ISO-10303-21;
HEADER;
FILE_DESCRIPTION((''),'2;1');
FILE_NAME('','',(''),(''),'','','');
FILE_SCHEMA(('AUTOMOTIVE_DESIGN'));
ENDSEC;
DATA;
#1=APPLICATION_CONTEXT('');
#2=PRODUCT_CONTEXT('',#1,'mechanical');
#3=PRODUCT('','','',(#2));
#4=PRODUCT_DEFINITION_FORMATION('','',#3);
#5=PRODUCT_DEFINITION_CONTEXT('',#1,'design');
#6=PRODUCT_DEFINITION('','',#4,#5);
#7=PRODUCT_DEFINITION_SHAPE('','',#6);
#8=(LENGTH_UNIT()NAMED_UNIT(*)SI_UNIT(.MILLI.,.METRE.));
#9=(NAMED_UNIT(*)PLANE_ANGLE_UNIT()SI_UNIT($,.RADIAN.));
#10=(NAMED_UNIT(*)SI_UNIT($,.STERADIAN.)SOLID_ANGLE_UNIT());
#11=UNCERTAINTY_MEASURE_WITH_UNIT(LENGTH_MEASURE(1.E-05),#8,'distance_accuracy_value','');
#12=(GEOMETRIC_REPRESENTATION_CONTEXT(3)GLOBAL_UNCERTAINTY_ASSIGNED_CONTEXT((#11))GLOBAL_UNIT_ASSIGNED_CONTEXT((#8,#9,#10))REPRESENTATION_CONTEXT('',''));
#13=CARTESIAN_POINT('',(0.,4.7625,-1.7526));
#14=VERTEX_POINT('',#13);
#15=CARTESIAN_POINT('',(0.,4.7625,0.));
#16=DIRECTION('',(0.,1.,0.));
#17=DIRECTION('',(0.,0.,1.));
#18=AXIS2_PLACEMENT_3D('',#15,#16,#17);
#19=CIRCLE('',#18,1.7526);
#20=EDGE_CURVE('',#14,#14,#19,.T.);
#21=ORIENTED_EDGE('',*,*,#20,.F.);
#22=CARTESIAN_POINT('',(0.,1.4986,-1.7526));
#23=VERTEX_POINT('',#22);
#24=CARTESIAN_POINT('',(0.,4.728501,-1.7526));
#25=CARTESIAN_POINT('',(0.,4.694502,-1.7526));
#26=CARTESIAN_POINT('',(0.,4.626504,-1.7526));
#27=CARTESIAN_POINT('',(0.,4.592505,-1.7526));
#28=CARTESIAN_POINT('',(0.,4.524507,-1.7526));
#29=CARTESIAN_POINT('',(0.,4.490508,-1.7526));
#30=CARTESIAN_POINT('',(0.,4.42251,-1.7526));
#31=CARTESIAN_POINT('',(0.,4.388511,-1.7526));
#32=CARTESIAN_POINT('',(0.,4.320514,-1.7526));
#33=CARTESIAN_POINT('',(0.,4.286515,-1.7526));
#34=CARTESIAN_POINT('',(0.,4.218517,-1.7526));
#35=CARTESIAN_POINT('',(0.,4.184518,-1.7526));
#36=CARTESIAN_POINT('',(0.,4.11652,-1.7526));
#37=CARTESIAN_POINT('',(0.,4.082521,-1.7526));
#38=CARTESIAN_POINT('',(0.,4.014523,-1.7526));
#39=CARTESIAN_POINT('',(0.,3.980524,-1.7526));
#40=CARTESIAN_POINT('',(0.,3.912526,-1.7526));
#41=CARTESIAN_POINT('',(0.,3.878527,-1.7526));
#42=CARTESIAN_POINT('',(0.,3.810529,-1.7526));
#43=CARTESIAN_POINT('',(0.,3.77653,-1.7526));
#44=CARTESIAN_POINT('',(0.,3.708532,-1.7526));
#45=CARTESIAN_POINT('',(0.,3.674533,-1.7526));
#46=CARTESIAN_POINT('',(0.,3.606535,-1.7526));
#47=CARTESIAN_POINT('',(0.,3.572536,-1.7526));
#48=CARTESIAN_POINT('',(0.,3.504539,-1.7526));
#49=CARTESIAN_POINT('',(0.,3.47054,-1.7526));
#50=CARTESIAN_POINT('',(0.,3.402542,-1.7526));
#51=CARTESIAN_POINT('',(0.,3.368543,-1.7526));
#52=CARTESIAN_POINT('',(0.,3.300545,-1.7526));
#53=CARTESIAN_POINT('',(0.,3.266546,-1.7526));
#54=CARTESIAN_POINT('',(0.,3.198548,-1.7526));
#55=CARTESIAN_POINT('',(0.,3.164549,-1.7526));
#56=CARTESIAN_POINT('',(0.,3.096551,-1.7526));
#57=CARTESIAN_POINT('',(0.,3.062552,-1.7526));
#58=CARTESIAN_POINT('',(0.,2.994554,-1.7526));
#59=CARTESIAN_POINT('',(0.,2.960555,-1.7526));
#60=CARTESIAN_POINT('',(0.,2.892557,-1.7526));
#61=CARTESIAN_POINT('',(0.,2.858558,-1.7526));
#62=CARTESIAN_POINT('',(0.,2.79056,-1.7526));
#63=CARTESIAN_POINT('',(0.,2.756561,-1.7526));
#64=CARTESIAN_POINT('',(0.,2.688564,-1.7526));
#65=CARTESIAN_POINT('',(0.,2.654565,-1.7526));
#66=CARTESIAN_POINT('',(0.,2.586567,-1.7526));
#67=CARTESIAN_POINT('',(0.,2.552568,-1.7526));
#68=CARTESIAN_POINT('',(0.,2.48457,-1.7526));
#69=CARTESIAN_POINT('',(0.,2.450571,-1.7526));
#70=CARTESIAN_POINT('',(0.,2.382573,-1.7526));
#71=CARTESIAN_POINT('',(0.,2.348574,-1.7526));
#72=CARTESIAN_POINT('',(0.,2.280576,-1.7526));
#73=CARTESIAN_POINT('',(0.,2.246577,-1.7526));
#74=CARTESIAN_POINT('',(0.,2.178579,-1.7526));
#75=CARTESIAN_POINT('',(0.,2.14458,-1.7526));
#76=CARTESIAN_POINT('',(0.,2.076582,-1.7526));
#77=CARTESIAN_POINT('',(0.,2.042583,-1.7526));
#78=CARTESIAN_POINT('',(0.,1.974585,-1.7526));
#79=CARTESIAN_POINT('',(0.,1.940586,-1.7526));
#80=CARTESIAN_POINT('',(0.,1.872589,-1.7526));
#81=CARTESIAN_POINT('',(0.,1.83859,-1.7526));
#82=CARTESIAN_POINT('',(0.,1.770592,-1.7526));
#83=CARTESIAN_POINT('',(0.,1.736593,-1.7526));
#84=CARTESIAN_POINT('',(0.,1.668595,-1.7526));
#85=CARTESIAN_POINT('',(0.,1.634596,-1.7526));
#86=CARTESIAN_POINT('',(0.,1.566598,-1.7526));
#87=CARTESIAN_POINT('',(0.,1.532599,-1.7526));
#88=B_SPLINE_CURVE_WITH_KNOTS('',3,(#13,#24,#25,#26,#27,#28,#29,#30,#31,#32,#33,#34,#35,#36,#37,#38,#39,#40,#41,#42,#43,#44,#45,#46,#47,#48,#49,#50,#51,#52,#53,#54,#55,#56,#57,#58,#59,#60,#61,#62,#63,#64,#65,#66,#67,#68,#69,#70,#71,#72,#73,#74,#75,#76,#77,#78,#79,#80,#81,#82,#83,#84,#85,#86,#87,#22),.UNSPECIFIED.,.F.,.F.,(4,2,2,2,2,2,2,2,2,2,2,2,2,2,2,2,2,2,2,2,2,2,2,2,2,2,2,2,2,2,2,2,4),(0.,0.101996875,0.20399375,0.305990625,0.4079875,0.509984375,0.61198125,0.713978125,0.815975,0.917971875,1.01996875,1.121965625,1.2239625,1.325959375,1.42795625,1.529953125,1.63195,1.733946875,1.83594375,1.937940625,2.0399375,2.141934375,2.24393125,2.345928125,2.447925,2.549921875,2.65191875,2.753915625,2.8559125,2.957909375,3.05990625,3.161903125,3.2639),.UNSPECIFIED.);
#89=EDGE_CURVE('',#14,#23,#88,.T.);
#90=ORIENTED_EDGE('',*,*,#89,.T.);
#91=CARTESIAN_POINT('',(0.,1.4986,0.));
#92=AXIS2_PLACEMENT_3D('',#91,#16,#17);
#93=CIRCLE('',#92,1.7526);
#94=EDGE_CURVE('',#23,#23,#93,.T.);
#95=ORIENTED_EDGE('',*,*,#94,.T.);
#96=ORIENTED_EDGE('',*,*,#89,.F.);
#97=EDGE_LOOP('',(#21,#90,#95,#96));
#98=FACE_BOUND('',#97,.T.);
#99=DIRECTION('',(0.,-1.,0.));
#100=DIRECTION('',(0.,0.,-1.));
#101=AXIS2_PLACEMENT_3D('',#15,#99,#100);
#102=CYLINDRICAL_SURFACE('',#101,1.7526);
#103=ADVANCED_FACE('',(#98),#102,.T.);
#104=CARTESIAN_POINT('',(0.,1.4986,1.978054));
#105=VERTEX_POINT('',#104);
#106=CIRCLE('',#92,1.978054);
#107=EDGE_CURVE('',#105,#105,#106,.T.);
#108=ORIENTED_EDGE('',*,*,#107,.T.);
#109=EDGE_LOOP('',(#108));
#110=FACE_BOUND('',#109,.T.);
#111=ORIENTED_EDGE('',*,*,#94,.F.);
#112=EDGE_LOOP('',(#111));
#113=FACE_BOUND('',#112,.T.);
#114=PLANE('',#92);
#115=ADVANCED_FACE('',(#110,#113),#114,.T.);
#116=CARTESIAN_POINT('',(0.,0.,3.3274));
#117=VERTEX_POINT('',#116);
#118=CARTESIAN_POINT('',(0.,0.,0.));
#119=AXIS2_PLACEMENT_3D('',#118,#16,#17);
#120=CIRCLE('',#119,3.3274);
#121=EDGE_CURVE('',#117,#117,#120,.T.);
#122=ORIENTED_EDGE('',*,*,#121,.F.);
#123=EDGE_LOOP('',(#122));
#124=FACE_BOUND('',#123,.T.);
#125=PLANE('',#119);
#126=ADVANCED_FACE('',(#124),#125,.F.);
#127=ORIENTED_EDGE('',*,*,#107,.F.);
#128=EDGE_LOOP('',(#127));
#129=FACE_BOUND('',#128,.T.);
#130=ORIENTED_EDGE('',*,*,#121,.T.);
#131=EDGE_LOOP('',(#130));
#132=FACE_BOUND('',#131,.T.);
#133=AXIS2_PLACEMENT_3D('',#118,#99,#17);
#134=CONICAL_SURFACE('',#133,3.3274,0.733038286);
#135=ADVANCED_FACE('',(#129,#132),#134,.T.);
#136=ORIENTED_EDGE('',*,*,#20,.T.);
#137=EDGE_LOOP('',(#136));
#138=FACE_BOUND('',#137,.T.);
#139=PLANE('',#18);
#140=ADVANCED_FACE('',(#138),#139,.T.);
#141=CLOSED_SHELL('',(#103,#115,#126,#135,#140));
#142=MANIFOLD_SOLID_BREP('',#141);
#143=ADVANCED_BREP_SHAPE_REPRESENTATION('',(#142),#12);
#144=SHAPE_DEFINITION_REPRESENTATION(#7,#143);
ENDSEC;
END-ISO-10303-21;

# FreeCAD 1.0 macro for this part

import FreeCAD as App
import Part
import Sketcher
from FreeCAD import Vector
Q = App.Units.Quantity

doc = App.newDocument("Part")
body = doc.addObject("PartDesign::Body", "Body")

# Sketch on XZ plane
sketch1 = doc.addObject("Sketcher::SketchObject", "Sketch")
body.addObject(sketch1)
sketch1.AttachmentSupport = (doc.XZ_Plane, [""])
sketch1.MapMode = "FlatFace"
sketch1.addGeometry(Part.Circle(Vector(0, 0, 0), Vector(0, 0, 1), 3.3274), False)
sketch1.addConstraint([
    Sketcher.Constraint("Coincident", 0, 3, -1, 1),
    Sketcher.Constraint("Diameter", 0, Q("0.262 in")),
])
pad1 = doc.addObject("PartDesign::Pad", "Pad")
body.addObject(pad1)
pad1.Profile = sketch1
pad1.Length = Q("0.059 in")
pad1.Reversed = True
pad1.TaperAngle = -42

# Sketch on XZ plane
sketch2 = doc.addObject("Sketcher::SketchObject", "Sketch001")
body.addObject(sketch2)
sketch2.AttachmentSupport = (doc.XZ_Plane, [""])
sketch2.MapMode = "FlatFace"
sketch2.AttachmentOffset = App.Placement(Vector(0, 0, -0.059 * 25.4), App.Rotation())
sketch2.addGeometry(Part.Circle(Vector(0, 0, 0), Vector(0, 0, 1), 1.7526), False)
sketch2.addConstraint([
    Sketcher.Constraint("Coincident", 0, 3, -1, 1),
    Sketcher.Constraint("Diameter", 0, Q("0.138 in")),
])
pad2 = doc.addObject("PartDesign::Pad", "Pad001")
body.addObject(pad2)
pad2.Profile = sketch2
pad2.Length = Q("0.1285 in")
pad2.Reversed = True

doc.recompute()
